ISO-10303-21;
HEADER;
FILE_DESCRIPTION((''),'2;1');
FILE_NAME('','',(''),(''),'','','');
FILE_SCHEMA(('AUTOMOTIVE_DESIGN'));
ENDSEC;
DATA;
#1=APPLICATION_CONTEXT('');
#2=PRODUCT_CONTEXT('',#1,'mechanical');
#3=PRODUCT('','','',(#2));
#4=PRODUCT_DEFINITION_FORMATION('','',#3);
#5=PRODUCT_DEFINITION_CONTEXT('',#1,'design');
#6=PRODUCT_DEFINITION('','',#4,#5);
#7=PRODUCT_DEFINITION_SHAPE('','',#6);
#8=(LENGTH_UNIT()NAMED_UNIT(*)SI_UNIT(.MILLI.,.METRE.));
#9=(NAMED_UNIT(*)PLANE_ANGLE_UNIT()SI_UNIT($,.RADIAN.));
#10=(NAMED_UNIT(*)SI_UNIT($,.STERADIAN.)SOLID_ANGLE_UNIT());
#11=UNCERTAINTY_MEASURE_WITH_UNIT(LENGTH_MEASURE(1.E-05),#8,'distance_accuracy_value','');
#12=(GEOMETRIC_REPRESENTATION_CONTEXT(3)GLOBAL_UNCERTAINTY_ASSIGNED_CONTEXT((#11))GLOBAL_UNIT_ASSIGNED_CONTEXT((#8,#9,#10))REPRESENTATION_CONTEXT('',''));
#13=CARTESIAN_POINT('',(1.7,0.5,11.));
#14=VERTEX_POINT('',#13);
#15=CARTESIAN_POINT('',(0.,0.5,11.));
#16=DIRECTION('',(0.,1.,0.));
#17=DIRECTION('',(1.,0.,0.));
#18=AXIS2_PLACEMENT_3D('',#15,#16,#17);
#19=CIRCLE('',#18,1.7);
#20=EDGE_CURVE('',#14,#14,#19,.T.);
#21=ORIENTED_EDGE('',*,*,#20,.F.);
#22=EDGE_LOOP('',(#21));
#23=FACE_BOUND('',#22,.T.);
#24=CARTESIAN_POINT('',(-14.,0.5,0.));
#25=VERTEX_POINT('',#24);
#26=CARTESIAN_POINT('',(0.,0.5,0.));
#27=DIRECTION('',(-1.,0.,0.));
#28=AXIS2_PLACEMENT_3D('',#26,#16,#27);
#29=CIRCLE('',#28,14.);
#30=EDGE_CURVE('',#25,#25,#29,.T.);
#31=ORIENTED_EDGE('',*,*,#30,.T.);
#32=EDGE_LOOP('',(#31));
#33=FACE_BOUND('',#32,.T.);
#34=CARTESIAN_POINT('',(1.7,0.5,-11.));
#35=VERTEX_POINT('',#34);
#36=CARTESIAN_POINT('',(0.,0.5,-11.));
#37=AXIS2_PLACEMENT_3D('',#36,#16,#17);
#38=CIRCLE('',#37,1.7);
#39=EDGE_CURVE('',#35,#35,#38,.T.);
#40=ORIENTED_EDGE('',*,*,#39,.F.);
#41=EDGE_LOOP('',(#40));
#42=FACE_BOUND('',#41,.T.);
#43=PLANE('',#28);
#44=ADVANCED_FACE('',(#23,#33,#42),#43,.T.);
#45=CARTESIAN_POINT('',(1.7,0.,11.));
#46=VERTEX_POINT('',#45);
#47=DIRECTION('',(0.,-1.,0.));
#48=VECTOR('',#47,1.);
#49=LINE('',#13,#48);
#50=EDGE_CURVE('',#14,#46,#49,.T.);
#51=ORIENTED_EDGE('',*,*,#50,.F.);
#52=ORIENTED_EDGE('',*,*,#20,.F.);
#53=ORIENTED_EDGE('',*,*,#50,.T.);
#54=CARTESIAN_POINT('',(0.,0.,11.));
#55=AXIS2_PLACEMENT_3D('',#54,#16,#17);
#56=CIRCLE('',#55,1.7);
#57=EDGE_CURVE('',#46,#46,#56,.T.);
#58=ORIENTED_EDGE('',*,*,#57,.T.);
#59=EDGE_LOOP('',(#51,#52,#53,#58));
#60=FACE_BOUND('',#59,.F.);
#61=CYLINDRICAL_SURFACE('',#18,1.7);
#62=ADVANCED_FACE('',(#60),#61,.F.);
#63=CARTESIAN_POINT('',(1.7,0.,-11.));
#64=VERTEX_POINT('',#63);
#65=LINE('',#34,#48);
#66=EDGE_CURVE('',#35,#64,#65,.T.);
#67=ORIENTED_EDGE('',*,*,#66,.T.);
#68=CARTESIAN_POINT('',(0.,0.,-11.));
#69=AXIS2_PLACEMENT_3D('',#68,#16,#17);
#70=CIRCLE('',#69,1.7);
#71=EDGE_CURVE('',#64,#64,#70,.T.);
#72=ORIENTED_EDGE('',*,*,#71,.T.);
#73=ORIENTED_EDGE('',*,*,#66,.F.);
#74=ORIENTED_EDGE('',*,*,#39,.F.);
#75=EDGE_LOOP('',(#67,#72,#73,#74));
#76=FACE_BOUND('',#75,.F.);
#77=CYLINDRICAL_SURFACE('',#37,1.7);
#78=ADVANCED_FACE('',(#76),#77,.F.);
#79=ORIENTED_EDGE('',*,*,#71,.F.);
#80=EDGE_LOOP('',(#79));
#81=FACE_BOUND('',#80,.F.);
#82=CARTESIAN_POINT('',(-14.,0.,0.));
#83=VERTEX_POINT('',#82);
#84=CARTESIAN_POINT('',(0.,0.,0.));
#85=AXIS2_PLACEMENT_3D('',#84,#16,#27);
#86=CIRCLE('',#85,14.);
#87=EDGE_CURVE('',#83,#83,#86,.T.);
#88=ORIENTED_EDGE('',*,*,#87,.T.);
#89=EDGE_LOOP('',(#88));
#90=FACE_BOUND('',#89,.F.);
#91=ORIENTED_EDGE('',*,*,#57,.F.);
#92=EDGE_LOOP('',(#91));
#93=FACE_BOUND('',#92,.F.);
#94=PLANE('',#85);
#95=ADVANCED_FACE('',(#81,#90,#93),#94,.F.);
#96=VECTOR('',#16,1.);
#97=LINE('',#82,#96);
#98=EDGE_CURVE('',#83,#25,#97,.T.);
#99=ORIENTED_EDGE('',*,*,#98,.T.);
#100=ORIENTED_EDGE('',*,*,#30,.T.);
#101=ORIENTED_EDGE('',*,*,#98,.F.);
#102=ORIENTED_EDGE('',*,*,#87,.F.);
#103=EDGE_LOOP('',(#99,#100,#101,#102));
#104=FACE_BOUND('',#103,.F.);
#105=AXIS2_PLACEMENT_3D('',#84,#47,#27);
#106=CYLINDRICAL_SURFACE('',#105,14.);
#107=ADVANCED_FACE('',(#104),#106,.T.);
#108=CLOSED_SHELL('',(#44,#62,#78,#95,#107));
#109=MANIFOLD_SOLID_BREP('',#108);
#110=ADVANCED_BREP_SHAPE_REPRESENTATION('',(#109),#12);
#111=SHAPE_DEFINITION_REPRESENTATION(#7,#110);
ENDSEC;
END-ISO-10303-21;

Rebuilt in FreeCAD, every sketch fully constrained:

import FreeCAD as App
import Part
import Sketcher

V = App.Vector

doc = App.newDocument("Part")
body = doc.addObject("PartDesign::Body", "Body")

# Sketch on XZ plane
sketch1 = body.newObject("Sketcher::SketchObject", "Sketch")
sketch1.AttachmentSupport = (doc.getObject("XZ_Plane"), [""])
sketch1.MapMode = "FlatFace"
sketch1.addGeometry(Part.Circle(V(0, 0, 0), V(0, 0, 1), 14), False)
sketch1.addConstraint([
    Sketcher.Constraint("Coincident", 0, 3, -1, 1),
    Sketcher.Constraint("Diameter", 0, 28.0),
])
pad1 = body.newObject("PartDesign::Pad", "Pad")
pad1.Profile = sketch1
pad1.Length = 0.5
pad1.Reversed = True

# Sketch on XZ plane
sketch2 = body.newObject("Sketcher::SketchObject", "Sketch001")
sketch2.AttachmentSupport = (doc.getObject("XZ_Plane"), [""])
sketch2.MapMode = "FlatFace"
sketch2.AttachmentOffset = App.Placement(V(0, 0, -0.5), App.Rotation())
sketch2.addGeometry([
    Part.Circle(V(0, -11, 0), V(0, 0, 1), 1.7),
    Part.Circle(V(0, 11, 0), V(0, 0, 1), 1.7),
], False)
sketch2.addConstraint([
    Sketcher.Constraint("Equal", 0, 1),
    Sketcher.Constraint("Symmetric", 0, 3, 1, 3, -1, 1),
    Sketcher.Constraint("PointOnObject", 0, 3, -2),
    Sketcher.Constraint("Diameter", 0, 3.4),
    Sketcher.Constraint("DistanceY", 0, 3, 1, 3, 22.0),
])
pocket1 = body.newObject("PartDesign::Pocket", "Pocket")
pocket1.Profile = sketch2
pocket1.Type = "ThroughAll"
pocket1.Reversed = True

doc.recompute()
